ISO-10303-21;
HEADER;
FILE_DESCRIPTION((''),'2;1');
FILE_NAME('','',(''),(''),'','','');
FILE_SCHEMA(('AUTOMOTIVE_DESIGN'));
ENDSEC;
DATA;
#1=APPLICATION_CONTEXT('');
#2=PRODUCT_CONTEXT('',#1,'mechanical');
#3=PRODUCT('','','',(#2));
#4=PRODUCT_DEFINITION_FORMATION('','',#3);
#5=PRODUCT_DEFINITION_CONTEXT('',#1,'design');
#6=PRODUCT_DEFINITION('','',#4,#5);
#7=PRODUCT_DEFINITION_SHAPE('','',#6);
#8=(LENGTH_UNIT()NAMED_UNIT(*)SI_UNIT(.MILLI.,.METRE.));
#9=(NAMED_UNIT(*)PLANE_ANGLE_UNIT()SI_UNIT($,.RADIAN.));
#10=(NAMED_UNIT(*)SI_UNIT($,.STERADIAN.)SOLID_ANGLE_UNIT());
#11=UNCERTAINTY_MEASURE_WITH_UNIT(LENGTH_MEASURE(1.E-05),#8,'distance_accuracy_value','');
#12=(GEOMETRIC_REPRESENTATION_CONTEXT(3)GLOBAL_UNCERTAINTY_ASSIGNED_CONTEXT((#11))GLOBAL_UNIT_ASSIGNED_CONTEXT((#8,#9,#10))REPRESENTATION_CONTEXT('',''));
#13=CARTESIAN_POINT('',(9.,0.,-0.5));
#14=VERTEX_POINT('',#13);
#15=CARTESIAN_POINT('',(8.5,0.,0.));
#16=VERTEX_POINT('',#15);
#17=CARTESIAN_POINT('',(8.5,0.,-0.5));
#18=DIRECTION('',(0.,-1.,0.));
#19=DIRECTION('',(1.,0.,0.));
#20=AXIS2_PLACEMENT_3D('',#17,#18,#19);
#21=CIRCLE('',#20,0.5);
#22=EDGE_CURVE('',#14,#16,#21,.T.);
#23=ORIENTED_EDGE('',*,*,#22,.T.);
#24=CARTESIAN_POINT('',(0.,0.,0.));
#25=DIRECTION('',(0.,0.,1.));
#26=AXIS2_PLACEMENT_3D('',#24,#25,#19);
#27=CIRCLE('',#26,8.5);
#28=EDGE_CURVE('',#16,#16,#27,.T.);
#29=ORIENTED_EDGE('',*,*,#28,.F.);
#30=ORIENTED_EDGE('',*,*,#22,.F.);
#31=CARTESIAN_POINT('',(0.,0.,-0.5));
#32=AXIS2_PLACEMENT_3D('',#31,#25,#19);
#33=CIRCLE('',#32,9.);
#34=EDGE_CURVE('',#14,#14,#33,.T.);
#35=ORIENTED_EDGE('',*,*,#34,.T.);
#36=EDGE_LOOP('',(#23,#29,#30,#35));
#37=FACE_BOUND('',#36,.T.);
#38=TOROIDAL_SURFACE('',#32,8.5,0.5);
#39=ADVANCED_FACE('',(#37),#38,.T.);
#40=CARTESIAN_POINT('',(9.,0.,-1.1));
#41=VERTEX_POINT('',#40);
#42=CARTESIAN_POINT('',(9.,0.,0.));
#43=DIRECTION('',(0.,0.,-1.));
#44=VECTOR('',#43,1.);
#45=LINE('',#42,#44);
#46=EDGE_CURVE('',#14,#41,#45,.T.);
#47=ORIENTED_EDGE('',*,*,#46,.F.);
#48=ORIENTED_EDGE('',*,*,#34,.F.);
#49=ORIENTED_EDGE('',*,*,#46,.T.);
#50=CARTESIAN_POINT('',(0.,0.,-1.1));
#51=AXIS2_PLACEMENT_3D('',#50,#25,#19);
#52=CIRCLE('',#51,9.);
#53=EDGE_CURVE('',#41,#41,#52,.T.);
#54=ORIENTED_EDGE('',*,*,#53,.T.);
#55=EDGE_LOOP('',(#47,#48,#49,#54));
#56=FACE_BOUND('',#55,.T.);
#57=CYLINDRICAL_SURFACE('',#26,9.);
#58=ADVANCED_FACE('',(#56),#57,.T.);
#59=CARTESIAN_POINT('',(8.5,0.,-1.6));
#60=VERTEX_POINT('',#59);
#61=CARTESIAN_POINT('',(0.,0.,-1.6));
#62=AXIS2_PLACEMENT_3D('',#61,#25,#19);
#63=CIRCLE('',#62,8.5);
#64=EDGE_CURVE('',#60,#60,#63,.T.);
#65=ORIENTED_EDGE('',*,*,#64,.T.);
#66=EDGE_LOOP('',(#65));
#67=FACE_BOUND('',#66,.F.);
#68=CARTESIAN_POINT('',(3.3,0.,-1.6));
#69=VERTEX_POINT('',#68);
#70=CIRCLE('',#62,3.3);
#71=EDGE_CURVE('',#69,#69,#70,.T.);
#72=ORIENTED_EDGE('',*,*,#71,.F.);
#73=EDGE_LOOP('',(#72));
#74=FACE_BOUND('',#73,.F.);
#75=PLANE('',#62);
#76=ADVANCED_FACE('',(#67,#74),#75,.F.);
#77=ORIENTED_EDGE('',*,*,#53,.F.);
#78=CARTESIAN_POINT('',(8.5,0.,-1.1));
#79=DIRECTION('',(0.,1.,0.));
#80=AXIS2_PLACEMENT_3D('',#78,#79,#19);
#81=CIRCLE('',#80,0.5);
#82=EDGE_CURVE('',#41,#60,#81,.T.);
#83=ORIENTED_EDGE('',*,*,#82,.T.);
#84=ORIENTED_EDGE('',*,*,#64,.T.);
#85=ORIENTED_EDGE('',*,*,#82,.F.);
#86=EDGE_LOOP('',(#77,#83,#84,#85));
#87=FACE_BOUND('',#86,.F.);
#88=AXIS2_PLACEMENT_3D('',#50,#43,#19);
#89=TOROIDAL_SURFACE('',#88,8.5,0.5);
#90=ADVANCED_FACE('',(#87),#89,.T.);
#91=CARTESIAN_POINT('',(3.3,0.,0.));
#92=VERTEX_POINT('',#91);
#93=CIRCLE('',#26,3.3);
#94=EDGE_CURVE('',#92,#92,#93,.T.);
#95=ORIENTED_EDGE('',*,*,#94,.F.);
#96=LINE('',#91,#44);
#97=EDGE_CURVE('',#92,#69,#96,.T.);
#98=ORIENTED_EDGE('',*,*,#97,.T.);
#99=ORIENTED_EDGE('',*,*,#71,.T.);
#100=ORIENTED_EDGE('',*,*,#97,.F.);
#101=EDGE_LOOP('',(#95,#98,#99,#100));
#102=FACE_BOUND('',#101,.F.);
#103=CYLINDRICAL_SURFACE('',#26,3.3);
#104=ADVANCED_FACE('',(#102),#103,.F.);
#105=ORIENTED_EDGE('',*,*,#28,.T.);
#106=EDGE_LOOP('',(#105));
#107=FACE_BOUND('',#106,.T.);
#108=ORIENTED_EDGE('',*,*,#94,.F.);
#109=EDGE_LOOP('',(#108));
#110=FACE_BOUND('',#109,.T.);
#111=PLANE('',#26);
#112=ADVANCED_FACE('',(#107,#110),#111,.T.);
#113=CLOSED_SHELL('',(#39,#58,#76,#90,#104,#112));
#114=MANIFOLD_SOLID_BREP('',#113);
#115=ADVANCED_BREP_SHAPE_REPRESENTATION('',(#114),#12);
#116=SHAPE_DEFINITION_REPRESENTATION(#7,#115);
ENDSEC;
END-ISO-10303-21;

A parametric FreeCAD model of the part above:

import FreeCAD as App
import Part
import Sketcher


def edges_at(feature, points):
    """Names of the edges that pass closest to the given points."""
    edges = feature.Shape.Edges
    near = lambda p: min(range(len(edges)), key=lambda i: edges[i].distToShape(Part.Vertex(*p))[0])
    return sorted({f"Edge{near(p) + 1}" for p in points})

doc = App.newDocument("Part")
body = doc.addObject("PartDesign::Body", "Body")

# Sketch on XY plane
sketch1 = body.newObject("Sketcher::SketchObject", "Sketch")
sketch1.AttachmentSupport = (doc.getObject("XY_Plane"), [""])
sketch1.MapMode = "FlatFace"
sketch1.addGeometry([
    Part.Circle(App.Vector(0, 0, 0), App.Vector(0, 0, 1), 9),
    Part.Circle(App.Vector(0, 0, 0), App.Vector(0, 0, 1), 3.3),
], False)
sketch1.addConstraint([
    Sketcher.Constraint("Coincident", 0, 3, -1, 1),
    Sketcher.Constraint("Coincident", 1, 3, -1, 1),
    Sketcher.Constraint("Diameter", 0, 18.0),
    Sketcher.Constraint("Diameter", 1, 6.6),
])
pad1 = body.newObject("PartDesign::Pad", "Pad")
pad1.Profile = sketch1
pad1.Length = 1.6
pad1.Reversed = True
doc.recompute()

fillet = body.newObject("PartDesign::Fillet", "Fillet")
fillet.Base = (pad1, edges_at(pad1, [(-9, 0, 0), (-9, 0, -1.6)]))
fillet.Radius = 0.5

doc.recompute()
